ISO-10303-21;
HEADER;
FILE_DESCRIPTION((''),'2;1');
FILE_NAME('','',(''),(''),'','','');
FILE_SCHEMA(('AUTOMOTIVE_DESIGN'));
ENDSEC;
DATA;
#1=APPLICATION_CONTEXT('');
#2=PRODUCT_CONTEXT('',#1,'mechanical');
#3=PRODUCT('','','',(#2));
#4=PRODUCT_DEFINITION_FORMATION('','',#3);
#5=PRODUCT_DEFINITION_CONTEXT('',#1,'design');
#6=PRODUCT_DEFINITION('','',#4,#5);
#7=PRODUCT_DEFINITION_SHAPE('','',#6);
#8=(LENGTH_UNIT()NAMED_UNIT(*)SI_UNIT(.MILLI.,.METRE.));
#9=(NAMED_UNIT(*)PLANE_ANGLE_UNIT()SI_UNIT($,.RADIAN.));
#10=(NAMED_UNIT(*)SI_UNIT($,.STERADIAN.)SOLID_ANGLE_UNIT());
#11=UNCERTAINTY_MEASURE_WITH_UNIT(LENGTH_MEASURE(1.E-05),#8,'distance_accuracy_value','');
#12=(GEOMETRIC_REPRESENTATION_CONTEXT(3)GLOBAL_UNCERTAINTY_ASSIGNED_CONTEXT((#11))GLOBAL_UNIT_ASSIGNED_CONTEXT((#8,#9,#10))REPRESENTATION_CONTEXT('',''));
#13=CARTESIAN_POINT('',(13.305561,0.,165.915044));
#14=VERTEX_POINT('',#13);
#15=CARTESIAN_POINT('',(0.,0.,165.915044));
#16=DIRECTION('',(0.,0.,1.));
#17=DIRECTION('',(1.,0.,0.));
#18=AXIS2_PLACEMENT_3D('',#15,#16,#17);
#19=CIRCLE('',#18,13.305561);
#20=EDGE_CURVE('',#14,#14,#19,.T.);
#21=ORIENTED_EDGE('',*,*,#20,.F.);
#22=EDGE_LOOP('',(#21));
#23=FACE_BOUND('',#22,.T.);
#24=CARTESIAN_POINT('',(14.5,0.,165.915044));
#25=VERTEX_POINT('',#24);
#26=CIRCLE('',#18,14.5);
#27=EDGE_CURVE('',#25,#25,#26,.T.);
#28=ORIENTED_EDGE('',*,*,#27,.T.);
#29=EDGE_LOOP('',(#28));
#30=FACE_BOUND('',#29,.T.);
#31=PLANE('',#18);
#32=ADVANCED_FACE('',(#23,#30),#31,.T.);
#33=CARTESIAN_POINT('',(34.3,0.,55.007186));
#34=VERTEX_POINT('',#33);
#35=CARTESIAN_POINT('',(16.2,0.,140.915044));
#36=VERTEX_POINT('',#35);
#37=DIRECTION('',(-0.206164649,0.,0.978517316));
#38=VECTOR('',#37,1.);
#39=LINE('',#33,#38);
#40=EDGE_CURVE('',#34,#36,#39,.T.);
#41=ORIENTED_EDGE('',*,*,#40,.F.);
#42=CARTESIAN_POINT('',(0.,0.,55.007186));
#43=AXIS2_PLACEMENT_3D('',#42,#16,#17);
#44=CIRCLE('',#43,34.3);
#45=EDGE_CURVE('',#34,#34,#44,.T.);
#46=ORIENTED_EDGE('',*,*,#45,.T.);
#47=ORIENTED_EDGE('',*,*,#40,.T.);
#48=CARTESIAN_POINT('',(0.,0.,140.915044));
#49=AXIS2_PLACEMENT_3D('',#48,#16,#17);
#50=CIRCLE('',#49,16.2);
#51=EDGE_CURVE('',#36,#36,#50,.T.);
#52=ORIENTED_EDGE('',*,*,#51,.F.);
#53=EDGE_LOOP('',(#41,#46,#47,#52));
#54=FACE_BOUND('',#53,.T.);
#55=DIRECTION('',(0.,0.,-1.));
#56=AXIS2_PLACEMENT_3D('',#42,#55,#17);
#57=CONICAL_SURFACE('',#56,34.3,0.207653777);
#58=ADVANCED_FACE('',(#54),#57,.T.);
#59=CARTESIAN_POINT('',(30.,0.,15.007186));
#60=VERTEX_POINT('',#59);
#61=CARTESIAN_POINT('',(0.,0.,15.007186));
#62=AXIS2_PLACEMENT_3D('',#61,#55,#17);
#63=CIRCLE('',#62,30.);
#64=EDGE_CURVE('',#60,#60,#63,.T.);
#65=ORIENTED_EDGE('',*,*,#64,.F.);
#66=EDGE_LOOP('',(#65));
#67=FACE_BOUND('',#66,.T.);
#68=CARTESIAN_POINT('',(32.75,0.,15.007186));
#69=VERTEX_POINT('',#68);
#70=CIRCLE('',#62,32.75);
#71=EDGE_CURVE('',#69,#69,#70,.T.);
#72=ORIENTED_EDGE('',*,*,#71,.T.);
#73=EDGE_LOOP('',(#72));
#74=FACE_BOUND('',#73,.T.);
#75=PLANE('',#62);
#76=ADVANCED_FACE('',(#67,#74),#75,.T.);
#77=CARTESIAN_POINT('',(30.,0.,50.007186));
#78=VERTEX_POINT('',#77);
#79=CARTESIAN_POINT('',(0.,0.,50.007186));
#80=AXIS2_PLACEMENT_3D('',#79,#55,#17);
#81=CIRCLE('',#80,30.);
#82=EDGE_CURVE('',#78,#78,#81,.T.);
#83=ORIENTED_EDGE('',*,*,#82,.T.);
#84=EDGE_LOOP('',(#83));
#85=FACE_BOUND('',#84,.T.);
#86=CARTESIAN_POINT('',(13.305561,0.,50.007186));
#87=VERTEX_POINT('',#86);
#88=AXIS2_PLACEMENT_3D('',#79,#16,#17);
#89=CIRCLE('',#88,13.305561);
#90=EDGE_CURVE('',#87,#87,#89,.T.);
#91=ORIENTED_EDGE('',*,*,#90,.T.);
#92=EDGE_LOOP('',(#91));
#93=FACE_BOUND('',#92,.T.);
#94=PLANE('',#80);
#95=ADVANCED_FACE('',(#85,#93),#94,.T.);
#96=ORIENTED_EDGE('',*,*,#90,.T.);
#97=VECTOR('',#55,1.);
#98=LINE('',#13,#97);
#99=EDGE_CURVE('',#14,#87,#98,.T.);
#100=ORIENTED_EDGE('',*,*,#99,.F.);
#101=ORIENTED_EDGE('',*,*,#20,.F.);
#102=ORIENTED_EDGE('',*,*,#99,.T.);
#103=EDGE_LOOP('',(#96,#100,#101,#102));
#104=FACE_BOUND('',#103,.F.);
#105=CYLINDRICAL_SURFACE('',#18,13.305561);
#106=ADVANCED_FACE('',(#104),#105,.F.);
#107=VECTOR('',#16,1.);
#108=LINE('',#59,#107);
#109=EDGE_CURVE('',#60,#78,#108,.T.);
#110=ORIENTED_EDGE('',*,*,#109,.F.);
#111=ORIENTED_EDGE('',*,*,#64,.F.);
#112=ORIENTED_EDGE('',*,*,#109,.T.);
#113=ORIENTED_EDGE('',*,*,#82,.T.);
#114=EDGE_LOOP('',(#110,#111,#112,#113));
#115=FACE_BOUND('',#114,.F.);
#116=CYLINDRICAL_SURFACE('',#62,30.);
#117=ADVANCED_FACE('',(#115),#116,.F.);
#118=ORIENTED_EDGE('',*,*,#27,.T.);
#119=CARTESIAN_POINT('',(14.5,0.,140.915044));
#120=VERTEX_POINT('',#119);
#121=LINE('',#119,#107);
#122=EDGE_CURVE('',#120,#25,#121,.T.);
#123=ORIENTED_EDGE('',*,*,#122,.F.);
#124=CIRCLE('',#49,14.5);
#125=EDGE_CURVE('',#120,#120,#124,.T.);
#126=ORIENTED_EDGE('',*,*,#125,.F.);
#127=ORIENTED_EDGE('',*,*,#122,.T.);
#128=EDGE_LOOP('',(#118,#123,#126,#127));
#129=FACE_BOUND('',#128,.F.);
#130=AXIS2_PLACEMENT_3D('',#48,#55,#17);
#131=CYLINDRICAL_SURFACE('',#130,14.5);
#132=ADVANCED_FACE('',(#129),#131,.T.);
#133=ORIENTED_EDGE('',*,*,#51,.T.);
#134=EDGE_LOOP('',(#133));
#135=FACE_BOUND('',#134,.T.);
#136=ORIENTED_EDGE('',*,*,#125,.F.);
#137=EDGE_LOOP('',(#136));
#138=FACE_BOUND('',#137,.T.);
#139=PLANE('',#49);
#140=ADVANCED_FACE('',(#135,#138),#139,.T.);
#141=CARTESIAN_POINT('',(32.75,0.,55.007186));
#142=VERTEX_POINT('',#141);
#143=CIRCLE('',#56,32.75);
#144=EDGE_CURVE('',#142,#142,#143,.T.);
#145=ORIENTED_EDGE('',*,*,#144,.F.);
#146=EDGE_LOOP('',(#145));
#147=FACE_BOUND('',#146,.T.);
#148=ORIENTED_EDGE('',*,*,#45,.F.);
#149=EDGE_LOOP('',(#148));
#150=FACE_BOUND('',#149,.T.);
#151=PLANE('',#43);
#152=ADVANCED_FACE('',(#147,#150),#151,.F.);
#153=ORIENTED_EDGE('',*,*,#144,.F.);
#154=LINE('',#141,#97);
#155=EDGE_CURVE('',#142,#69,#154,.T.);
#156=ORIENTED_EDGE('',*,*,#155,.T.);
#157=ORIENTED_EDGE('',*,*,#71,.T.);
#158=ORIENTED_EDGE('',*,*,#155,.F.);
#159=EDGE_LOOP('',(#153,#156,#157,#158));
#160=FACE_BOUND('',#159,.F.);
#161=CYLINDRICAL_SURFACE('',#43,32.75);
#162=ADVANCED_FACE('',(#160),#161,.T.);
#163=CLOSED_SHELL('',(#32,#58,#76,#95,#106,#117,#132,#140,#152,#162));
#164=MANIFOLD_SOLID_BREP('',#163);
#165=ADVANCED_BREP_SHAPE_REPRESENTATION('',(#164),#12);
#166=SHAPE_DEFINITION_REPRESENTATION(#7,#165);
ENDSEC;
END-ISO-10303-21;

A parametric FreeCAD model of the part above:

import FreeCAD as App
import Part
import Sketcher

V = App.Vector
Q = App.Units.Quantity


def add_polygon(sketch, points):
    """Adds a closed chain of lines whose ends are joined by coincident constraints."""
    first, n = sketch.GeometryCount, len(points)
    for a, b in zip(points, points[1:] + points[:1]):
        sketch.addGeometry(Part.LineSegment(App.Vector(*a, 0), App.Vector(*b, 0)), False)
    for i in range(n):
        sketch.addConstraint(Sketcher.Constraint("Coincident", first + i, 2, first + (i + 1) % n, 1))

doc = App.newDocument("Part")
params = doc.addObject("Spreadsheet::Sheet", "Params")
for row, (alias, value) in enumerate([
    ("sketch1_width", "16.2 mm"),
    ("sketch1_width2", "34.3 mm"),
    ("revolution_angle", "360 deg"),
    ("sketch2_diameter", "65.5 mm"),
    ("pad1_length", "40 mm"),
    ("sketch3_diameter", "60 mm"),
    ("pocket1_length", "35 mm"),
    ("sketch4_diameter", "29 mm"),
    ("pad2_length", "25 mm"),
    ("pocket2_length", "140 mm"),
], start=1):
    params.set(f"A{row}", alias)
    params.set(f"B{row}", "=" + value)
    params.setAlias(f"B{row}", alias)

body = doc.addObject("PartDesign::Body", "Body")

sketch1 = body.newObject("Sketcher::SketchObject", "Sketch")
sketch1.AttachmentSupport = (doc.getObject("XZ_Plane"), [""])
sketch1.MapMode = "FlatFace"
add_polygon(sketch1, [(16.2, 140.915044), (0, 140.915044), (0, 55.007186), (34.3, 55.007186)])
sketch1.addConstraint([
    Sketcher.Constraint("Horizontal", 0),
    Sketcher.Constraint("Vertical", 1),
    Sketcher.Constraint("Horizontal", 2),
    Sketcher.Constraint("PointOnObject", 0, 2, -2),
    Sketcher.Constraint("DistanceX", 0, 2, 0, 1, Q("16.2 mm")),
    Sketcher.Constraint("DistanceX", 2, 1, 2, 2, Q("34.3 mm")),
    Sketcher.Constraint("DistanceY", 1, 2, 1, 1, Q("85.907858 mm")),
    Sketcher.Constraint("DistanceY", -1, 1, 0, 2, Q("140.915044 mm")),
])
sketch1.setExpression("Constraints[8]", "Params.sketch1_width")
sketch1.setExpression("Constraints[9]", "Params.sketch1_width2")
revolution = body.newObject("PartDesign::Revolution", "Revolution")
revolution.Profile = sketch1
revolution.ReferenceAxis = (sketch1, ["V_Axis"])
revolution.setExpression("Angle", "Params.revolution_angle")

sketch2 = body.newObject("Sketcher::SketchObject", "Sketch001")
sketch2.AttachmentSupport = (doc.getObject("XY_Plane"), [""])
sketch2.MapMode = "FlatFace"
sketch2.AttachmentOffset = App.Placement(V(0, 0, 55.007186), App.Rotation())
sketch2.addGeometry(Part.Circle(V(0, 0, 0), V(0, 0, 1), 32.75), False)
sketch2.addConstraint([
    Sketcher.Constraint("Coincident", 0, 3, -1, 1),
    Sketcher.Constraint("Diameter", 0, Q("65.5 mm")),
])
sketch2.setExpression("Constraints[1]", "Params.sketch2_diameter")
pad1 = body.newObject("PartDesign::Pad", "Pad")
pad1.Profile = sketch2
pad1.setExpression("Length", "Params.pad1_length")
pad1.Reversed = True

sketch3 = body.newObject("Sketcher::SketchObject", "Sketch002")
sketch3.AttachmentSupport = (doc.getObject("XY_Plane"), [""])
sketch3.MapMode = "FlatFace"
sketch3.AttachmentOffset = App.Placement(V(0, 0, 15.007186), App.Rotation())
sketch3.addGeometry(Part.Circle(V(0, 0, 0), V(0, 0, 1), 30), False)
sketch3.addConstraint([
    Sketcher.Constraint("Coincident", 0, 3, -1, 1),
    Sketcher.Constraint("Diameter", 0, Q("60 mm")),
])
sketch3.setExpression("Constraints[1]", "Params.sketch3_diameter")
pocket1 = body.newObject("PartDesign::Pocket", "Pocket")
pocket1.Profile = sketch3
pocket1.setExpression("Length", "Params.pocket1_length")
pocket1.Reversed = True

sketch4 = body.newObject("Sketcher::SketchObject", "Sketch003")
sketch4.AttachmentSupport = (doc.getObject("XY_Plane"), [""])
sketch4.MapMode = "FlatFace"
sketch4.AttachmentOffset = App.Placement(V(0, 0, 140.915044), App.Rotation())
sketch4.addGeometry(Part.Circle(V(0, 0, 0), V(0, 0, 1), 14.5), False)
sketch4.addConstraint([
    Sketcher.Constraint("Coincident", 0, 3, -1, 1),
    Sketcher.Constraint("Diameter", 0, Q("29 mm")),
])
sketch4.setExpression("Constraints[1]", "Params.sketch4_diameter")
pad2 = body.newObject("PartDesign::Pad", "Pad001")
pad2.Profile = sketch4
pad2.setExpression("Length", "Params.pad2_length")

sketch5 = body.newObject("Sketcher::SketchObject", "Sketch004")
sketch5.AttachmentSupport = (doc.getObject("XY_Plane"), [""])
sketch5.MapMode = "FlatFace"
sketch5.AttachmentOffset = App.Placement(V(0, 0, 165.915044), App.Rotation())
sketch5.addGeometry(Part.Circle(V(0, 0, 0), V(0, 0, 1), 13.305561), False)
sketch5.addConstraint([
    Sketcher.Constraint("Coincident", 0, 3, -1, 1),
    Sketcher.Constraint("Diameter", 0, Q("26.611122 mm")),
])
pocket2 = body.newObject("PartDesign::Pocket", "Pocket001")
pocket2.Profile = sketch5
pocket2.setExpression("Length", "Params.pocket2_length")

doc.recompute()
